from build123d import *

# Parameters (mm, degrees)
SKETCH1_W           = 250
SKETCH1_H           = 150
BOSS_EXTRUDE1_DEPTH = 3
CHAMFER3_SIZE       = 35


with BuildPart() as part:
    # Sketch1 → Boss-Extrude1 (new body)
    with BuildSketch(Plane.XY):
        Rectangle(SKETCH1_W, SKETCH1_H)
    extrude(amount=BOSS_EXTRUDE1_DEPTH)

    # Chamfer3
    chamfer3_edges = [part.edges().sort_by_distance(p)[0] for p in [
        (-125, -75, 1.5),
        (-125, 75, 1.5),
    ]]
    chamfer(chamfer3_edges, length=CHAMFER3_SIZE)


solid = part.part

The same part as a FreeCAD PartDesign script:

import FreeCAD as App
import Part
import Sketcher
from FreeCAD import Vector


def edges_at(feature, points):
    """Names of the edges that pass closest to the given points."""
    edges = feature.Shape.Edges
    near = lambda p: min(range(len(edges)), key=lambda i: edges[i].distToShape(Part.Vertex(*p))[0])
    return sorted({f"Edge{near(p) + 1}" for p in points})


def add_polygon(sketch, points):
    """Adds a closed chain of lines whose ends are joined by coincident constraints."""
    first, n = sketch.GeometryCount, len(points)
    for a, b in zip(points, points[1:] + points[:1]):
        sketch.addGeometry(Part.LineSegment(App.Vector(*a, 0), App.Vector(*b, 0)), False)
    for i in range(n):
        sketch.addConstraint(Sketcher.Constraint("Coincident", first + i, 2, first + (i + 1) % n, 1))

doc = App.newDocument("Part")
params = doc.addObject("Spreadsheet::Sheet", "Params")
for row, (alias, value) in enumerate([
    ("sketch1_width", "250 mm"),
    ("sketch1_height", "150 mm"),
    ("pad1_length", "3 mm"),
    ("chamfer_size", "35 mm"),
], start=1):
    params.set(f"A{row}", alias)
    params.set(f"B{row}", "=" + value)
    params.setAlias(f"B{row}", alias)

body = doc.addObject("PartDesign::Body", "Body")

# Sketch on XY plane
sketch1 = doc.addObject("Sketcher::SketchObject", "Sketch")
body.addObject(sketch1)
sketch1.AttachmentSupport = (doc.XY_Plane, [""])
sketch1.MapMode = "FlatFace"
add_polygon(sketch1, [(-125, 75), (-125, -75), (125, -75), (125, 75)])  # lines 0-3
sketch1.addConstraint(Sketcher.Constraint("Vertical", 0))
sketch1.addConstraint(Sketcher.Constraint("Horizontal", 1))
sketch1.addConstraint(Sketcher.Constraint("Vertical", 2))
sketch1.addConstraint(Sketcher.Constraint("Horizontal", 3))
sketch1.addConstraint(Sketcher.Constraint("Symmetric", 0, 2, 2, 2, -1, 1))
sketch1.addConstraint(Sketcher.Constraint("DistanceX", 1, 1, 1, 2, 250.0))
sketch1.addConstraint(Sketcher.Constraint("DistanceY", 0, 2, 0, 1, 150.0))
sketch1.setExpression("Constraints[9]", "Params.sketch1_width")
sketch1.setExpression("Constraints[10]", "Params.sketch1_height")
pad1 = doc.addObject("PartDesign::Pad", "Pad")
body.addObject(pad1)
pad1.Profile = sketch1
pad1.setExpression("Length", "Params.pad1_length")
doc.recompute()

chamfer = doc.addObject("PartDesign::Chamfer", "Chamfer")
body.addObject(chamfer)
chamfer.Base = (pad1, edges_at(pad1, [(-125, -75, 1.5), (-125, 75, 1.5)]))
chamfer.setExpression("Size", "Params.chamfer_size")

doc.recompute()
